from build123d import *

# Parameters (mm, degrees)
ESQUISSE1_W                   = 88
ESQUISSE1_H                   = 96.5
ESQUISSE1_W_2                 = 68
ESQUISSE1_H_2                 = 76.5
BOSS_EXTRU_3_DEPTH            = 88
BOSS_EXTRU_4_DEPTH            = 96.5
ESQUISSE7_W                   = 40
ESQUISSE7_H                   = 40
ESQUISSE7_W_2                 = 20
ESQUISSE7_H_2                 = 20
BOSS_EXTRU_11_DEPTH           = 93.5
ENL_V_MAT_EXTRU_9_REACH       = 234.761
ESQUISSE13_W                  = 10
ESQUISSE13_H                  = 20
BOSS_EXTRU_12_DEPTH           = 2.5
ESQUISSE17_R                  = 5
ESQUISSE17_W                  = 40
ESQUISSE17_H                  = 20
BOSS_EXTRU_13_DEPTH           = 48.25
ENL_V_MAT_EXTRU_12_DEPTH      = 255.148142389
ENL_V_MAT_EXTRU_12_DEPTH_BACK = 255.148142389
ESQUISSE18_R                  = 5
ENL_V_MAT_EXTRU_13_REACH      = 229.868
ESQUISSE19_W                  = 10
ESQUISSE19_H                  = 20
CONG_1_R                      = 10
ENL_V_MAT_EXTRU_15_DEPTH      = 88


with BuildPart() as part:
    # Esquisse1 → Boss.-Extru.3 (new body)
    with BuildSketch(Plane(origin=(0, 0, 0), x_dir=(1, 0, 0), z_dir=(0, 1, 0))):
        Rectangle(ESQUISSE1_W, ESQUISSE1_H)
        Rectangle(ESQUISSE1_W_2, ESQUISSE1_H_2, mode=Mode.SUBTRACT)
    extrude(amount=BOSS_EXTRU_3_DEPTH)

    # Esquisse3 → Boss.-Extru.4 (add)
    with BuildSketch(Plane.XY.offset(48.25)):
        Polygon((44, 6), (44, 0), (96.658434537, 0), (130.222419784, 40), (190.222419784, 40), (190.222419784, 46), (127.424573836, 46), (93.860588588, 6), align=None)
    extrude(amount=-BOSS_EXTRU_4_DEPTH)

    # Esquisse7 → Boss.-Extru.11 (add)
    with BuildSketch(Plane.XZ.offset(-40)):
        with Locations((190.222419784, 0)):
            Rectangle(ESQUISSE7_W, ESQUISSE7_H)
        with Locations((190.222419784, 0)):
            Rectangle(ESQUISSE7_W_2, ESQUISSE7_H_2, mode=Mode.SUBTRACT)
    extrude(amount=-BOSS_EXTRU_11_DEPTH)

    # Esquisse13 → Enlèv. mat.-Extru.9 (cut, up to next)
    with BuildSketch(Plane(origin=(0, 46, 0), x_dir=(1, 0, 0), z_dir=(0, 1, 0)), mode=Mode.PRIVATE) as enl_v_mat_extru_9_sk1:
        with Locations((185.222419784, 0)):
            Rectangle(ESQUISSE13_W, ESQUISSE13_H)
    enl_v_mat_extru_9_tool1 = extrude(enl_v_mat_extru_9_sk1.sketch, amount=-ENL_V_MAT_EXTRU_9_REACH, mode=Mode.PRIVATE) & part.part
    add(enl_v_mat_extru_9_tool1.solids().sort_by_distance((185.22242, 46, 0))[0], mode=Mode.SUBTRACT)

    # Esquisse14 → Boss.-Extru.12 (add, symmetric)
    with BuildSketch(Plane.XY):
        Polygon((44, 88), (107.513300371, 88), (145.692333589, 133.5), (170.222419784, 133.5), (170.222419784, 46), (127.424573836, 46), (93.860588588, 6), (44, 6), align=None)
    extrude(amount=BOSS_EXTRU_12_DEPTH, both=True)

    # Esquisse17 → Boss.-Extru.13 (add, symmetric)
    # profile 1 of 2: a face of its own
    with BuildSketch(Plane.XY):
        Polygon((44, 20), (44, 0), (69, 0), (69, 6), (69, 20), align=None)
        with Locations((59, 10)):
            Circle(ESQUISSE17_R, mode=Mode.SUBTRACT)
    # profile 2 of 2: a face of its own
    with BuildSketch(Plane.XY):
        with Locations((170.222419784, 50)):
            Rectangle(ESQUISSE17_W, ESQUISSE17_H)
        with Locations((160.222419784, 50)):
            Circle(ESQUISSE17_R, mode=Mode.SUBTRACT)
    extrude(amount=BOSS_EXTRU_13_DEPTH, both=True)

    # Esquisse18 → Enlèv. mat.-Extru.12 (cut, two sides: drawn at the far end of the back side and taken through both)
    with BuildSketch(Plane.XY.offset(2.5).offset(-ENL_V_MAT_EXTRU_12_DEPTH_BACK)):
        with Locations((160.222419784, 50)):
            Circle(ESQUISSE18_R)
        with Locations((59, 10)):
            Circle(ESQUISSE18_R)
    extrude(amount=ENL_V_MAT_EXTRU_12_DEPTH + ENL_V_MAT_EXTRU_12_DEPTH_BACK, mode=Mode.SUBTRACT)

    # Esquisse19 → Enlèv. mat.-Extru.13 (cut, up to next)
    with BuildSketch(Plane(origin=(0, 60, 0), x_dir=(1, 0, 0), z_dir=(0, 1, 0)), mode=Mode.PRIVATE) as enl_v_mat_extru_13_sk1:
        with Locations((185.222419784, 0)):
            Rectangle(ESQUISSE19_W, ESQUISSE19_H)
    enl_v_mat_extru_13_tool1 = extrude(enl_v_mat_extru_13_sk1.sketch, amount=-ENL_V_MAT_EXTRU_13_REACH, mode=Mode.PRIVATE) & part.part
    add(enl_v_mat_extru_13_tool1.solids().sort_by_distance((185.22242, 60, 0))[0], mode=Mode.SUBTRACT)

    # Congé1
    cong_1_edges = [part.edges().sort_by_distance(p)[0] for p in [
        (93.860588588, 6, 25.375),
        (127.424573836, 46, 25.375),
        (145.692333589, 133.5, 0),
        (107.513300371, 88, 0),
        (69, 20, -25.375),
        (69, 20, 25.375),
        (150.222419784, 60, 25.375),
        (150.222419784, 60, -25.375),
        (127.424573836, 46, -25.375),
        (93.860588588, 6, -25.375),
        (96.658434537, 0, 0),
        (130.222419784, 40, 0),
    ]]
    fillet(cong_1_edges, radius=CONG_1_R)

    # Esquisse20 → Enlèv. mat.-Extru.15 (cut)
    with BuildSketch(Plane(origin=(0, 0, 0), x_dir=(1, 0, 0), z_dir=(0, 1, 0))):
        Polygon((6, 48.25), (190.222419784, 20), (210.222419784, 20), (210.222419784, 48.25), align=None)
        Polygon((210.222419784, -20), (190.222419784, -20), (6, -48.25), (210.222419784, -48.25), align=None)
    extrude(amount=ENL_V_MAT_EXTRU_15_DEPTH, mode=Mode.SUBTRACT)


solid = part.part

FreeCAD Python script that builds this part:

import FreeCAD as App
import Part
import Sketcher
Q = App.Units.Quantity


def edges_at(feature, points):
    """Names of the edges that pass closest to the given points."""
    edges = feature.Shape.Edges
    near = lambda p: min(range(len(edges)), key=lambda i: edges[i].distToShape(Part.Vertex(*p))[0])
    return sorted({f"Edge{near(p) + 1}" for p in points})


def add_polygon(sketch, points):
    """Adds a closed chain of lines whose ends are joined by coincident constraints."""
    first, n = sketch.GeometryCount, len(points)
    for a, b in zip(points, points[1:] + points[:1]):
        sketch.addGeometry(Part.LineSegment(App.Vector(*a, 0), App.Vector(*b, 0)), False)
    for i in range(n):
        sketch.addConstraint(Sketcher.Constraint("Coincident", first + i, 2, first + (i + 1) % n, 1))

doc = App.newDocument("Part")
body = doc.addObject("PartDesign::Body", "Body")

# Sketch on XZ plane
sketch1 = body.newObject("Sketcher::SketchObject", "Sketch")
sketch1.AttachmentSupport = (doc.getObject("XZ_Plane"), [""])
sketch1.MapMode = "FlatFace"
add_polygon(sketch1, [(-44, -48), (-44, 48), (44, 48), (44, -48)])  # lines 0-3
add_polygon(sketch1, [(34, 38), (-34, 38), (-34, -38), (34, -38)])  # lines 4-7
sketch1.addConstraint([
    Sketcher.Constraint("Vertical", 0),
    Sketcher.Constraint("Horizontal", 1),
    Sketcher.Constraint("Vertical", 2),
    Sketcher.Constraint("Horizontal", 3),
    Sketcher.Constraint("Horizontal", 4),
    Sketcher.Constraint("Vertical", 5),
    Sketcher.Constraint("Horizontal", 6),
    Sketcher.Constraint("Vertical", 7),
    Sketcher.Constraint("Symmetric", 0, 2, 2, 2, -1, 1),
    Sketcher.Constraint("Symmetric", 4, 2, 6, 2, -1, 1),
    Sketcher.Constraint("DistanceX", 1, 1, 1, 2, Q("88 mm")),
    Sketcher.Constraint("DistanceX", 4, 2, 4, 1, Q("68 mm")),
    Sketcher.Constraint("DistanceY", 0, 1, 0, 2, Q("96.5 mm")),
    Sketcher.Constraint("DistanceY", 5, 2, 5, 1, Q("76.5 mm")),
])
pad1 = body.newObject("PartDesign::Pad", "Pad")
pad1.Profile = sketch1
pad1.Length = 88
pad1.Reversed = True

# Sketch on XY plane
sketch2 = body.newObject("Sketcher::SketchObject", "Sketch001")
sketch2.AttachmentSupport = (doc.getObject("XY_Plane"), [""])
sketch2.MapMode = "FlatFace"
sketch2.AttachmentOffset = App.Placement(App.Vector(0, 0, 48.25), App.Rotation())
add_polygon(sketch2, [(44, 6), (44, 0), (97, 0), (130, 40), (190, 40), (190, 46), (127, 46), (94, 6)])  # lines 0-7
sketch2.addConstraint([
    Sketcher.Constraint("Vertical", 0),
    Sketcher.Constraint("Horizontal", 1),
    Sketcher.Constraint("Horizontal", 3),
    Sketcher.Constraint("Vertical", 4),
    Sketcher.Constraint("Horizontal", 5),
    Sketcher.Constraint("Horizontal", 7),
    Sketcher.Constraint("PointOnObject", 0, 2, -1),
    Sketcher.Constraint("Parallel", 2, 6),
    Sketcher.Constraint("Equal", 0, 4),
    Sketcher.Constraint("DistanceX", 3, 1, 3, 2, Q("60 mm")),
    Sketcher.Constraint("DistanceY", 0, 2, 0, 1, Q("6 mm")),
    Sketcher.Constraint("Angle", 2, Q("50 deg")),
    Sketcher.Constraint("DistanceX", -1, 1, 0, 2, Q("44 mm")),
    Sketcher.Constraint("DistanceY", -1, 1, 2, 2, Q("40 mm")),
    Sketcher.Constraint("DistanceX", 7, 2, 7, 1, Q("49.860589 mm")),
    Sketcher.Constraint("DistanceX", 1, 1, 1, 2, Q("52.658435 mm")),
])
pad2 = body.newObject("PartDesign::Pad", "Pad001")
pad2.Profile = sketch2
pad2.Length = 96.5
pad2.Reversed = True

# Sketch on XZ plane
sketch3 = body.newObject("Sketcher::SketchObject", "Sketch002")
sketch3.AttachmentSupport = (doc.getObject("XZ_Plane"), [""])
sketch3.MapMode = "FlatFace"
sketch3.AttachmentOffset = App.Placement(App.Vector(0, 0, -40), App.Rotation())
add_polygon(sketch3, [(170, 20), (170, -20), (210, -20), (210, 20)])  # lines 0-3
add_polygon(sketch3, [(200, -10), (180, -10), (180, 10), (200, 10)])  # lines 4-7
sketch3.addConstraint([
    Sketcher.Constraint("Vertical", 0),
    Sketcher.Constraint("Horizontal", 1),
    Sketcher.Constraint("Vertical", 2),
    Sketcher.Constraint("Horizontal", 3),
    Sketcher.Constraint("Horizontal", 4),
    Sketcher.Constraint("Vertical", 5),
    Sketcher.Constraint("Horizontal", 6),
    Sketcher.Constraint("Vertical", 7),
    Sketcher.Constraint("Equal", 3, 0),
    Sketcher.Constraint("Equal", 6, 5),
    Sketcher.Constraint("DistanceX", 1, 1, 1, 2, Q("40 mm")),
    Sketcher.Constraint("DistanceX", 4, 2, 4, 1, Q("20 mm")),
    Sketcher.Constraint("DistanceY", 0, 2, -1, 1, Q("20 mm")),
    Sketcher.Constraint("DistanceY", 4, 2, -1, 1, Q("10 mm")),
    Sketcher.Constraint("DistanceX", 0, 2, 4, 2, Q("10 mm")),
    Sketcher.Constraint("DistanceX", -1, 1, 0, 2, Q("170.22242 mm")),
])
pad3 = body.newObject("PartDesign::Pad", "Pad002")
pad3.Profile = sketch3
pad3.Length = 93.5
pad3.Reversed = True

# Sketch on XZ plane
sketch4 = body.newObject("Sketcher::SketchObject", "Sketch003")
sketch4.AttachmentSupport = (doc.getObject("XZ_Plane"), [""])
sketch4.MapMode = "FlatFace"
sketch4.AttachmentOffset = App.Placement(App.Vector(0, 0, -46), App.Rotation())
add_polygon(sketch4, [(180, -10), (180, 10), (190, 10), (190, -10)])  # lines 0-3
sketch4.addConstraint([
    Sketcher.Constraint("Vertical", 0),
    Sketcher.Constraint("Horizontal", 1),
    Sketcher.Constraint("Vertical", 2),
    Sketcher.Constraint("Horizontal", 3),
    Sketcher.Constraint("DistanceX", 1, 1, 1, 2, Q("10 mm")),
    Sketcher.Constraint("DistanceY", 0, 1, 0, 2, Q("20 mm")),
    Sketcher.Constraint("DistanceY", -1, 1, 0, 2, Q("10 mm")),
    Sketcher.Constraint("DistanceX", -1, 1, 0, 2, Q("180.22242 mm")),
])
pocket1 = body.newObject("PartDesign::Pocket", "Pocket")
pocket1.Profile = sketch4
pocket1.Type = "UpToFirst"
pocket1.Reversed = True

# Sketch on XY plane
sketch5 = body.newObject("Sketcher::SketchObject", "Sketch004")
sketch5.AttachmentSupport = (doc.getObject("XY_Plane"), [""])
sketch5.MapMode = "FlatFace"
add_polygon(sketch5, [(108, 88), (44, 88), (44, 6), (94, 6), (127, 46), (170, 46), (170, 134), (146, 134)])  # lines 0-7
sketch5.addConstraint([
    Sketcher.Constraint("Horizontal", 0),
    Sketcher.Constraint("Vertical", 1),
    Sketcher.Constraint("Horizontal", 2),
    Sketcher.Constraint("Horizontal", 4),
    Sketcher.Constraint("Vertical", 5),
    Sketcher.Constraint("Horizontal", 6),
    Sketcher.Constraint("Parallel", 3, 7),
    Sketcher.Constraint("DistanceY", 1, 2, 1, 1, Q("82 mm")),
    Sketcher.Constraint("Angle", 3, Q("50 deg")),
    Sketcher.Constraint("DistanceY", 5, 1, 5, 2, Q("87.5 mm")),
    Sketcher.Constraint("DistanceX", -1, 1, 0, 2, Q("44 mm")),
    Sketcher.Constraint("DistanceY", -1, 1, 0, 2, Q("88 mm")),
    Sketcher.Constraint("DistanceY", -1, 1, 3, 2, Q("46 mm")),
    Sketcher.Constraint("DistanceX", 0, 2, 0, 1, Q("63.5133 mm")),
    Sketcher.Constraint("DistanceX", 2, 1, 2, 2, Q("49.860589 mm")),
    Sketcher.Constraint("DistanceX", 4, 1, 4, 2, Q("42.797846 mm")),
])
pad4 = body.newObject("PartDesign::Pad", "Pad003")
pad4.Profile = sketch5
pad4.Length = 5
pad4.Midplane = True

# Sketch on XY plane
sketch6 = body.newObject("Sketcher::SketchObject", "Sketch005")
sketch6.AttachmentSupport = (doc.getObject("XY_Plane"), [""])
sketch6.MapMode = "FlatFace"
add_polygon(sketch6, [(44, 20), (44, 0), (69, 0), (69, 20)])  # lines 0-3
sketch6.addGeometry(Part.Circle(App.Vector(59, 10, 0), App.Vector(0, 0, 1), 5), False)  # 4
add_polygon(sketch6, [(150, 60), (150, 40), (190, 40), (190, 60)])  # lines 5-8
sketch6.addGeometry(Part.Circle(App.Vector(160, 50, 0), App.Vector(0, 0, 1), 5), False)  # 9
sketch6.addConstraint([
    Sketcher.Constraint("Vertical", 0),
    Sketcher.Constraint("Horizontal", 1),
    Sketcher.Constraint("Vertical", 2),
    Sketcher.Constraint("Horizontal", 3),
    Sketcher.Constraint("Vertical", 5),
    Sketcher.Constraint("Horizontal", 6),
    Sketcher.Constraint("Vertical", 7),
    Sketcher.Constraint("Horizontal", 8),
    Sketcher.Constraint("Equal", 4, 9),
    Sketcher.Constraint("PointOnObject", 0, 2, -1),
    Sketcher.Constraint("Equal", 2, 5),
    Sketcher.Constraint("Diameter", 4, Q("10 mm")),
    Sketcher.Constraint("DistanceX", 1, 1, 1, 2, Q("25 mm")),
    Sketcher.Constraint("DistanceX", 6, 1, 6, 2, Q("40 mm")),
    Sketcher.Constraint("DistanceY", 0, 2, 0, 1, Q("20 mm")),
    Sketcher.Constraint("DistanceX", -1, 1, 4, 3, Q("59 mm")),
    Sketcher.Constraint("DistanceY", -1, 1, 4, 3, Q("10 mm")),
    Sketcher.Constraint("DistanceY", -1, 1, 9, 3, Q("50 mm")),
    Sketcher.Constraint("DistanceX", -1, 1, 0, 2, Q("44 mm")),
    Sketcher.Constraint("DistanceY", -1, 1, 5, 2, Q("40 mm")),
    Sketcher.Constraint("DistanceX", 5, 2, 9, 3, Q("10 mm")),
    Sketcher.Constraint("DistanceX", -1, 1, 9, 3, Q("160.22242 mm")),
])
pad5 = body.newObject("PartDesign::Pad", "Pad004")
pad5.Profile = sketch6
pad5.Length = 96.5
pad5.Midplane = True

# Sketch on XY plane
sketch7 = body.newObject("Sketcher::SketchObject", "Sketch006")
sketch7.AttachmentSupport = (doc.getObject("XY_Plane"), [""])
sketch7.MapMode = "FlatFace"
sketch7.AttachmentOffset = App.Placement(App.Vector(0, 0, 2.5), App.Rotation())
sketch7.addGeometry([
    Part.Circle(App.Vector(160, 50, 0), App.Vector(0, 0, 1), 5),
    Part.Circle(App.Vector(59, 10, 0), App.Vector(0, 0, 1), 5),
], False)
sketch7.addConstraint([
    Sketcher.Constraint("Equal", 0, 1),
    Sketcher.Constraint("Diameter", 0, Q("10 mm")),
    Sketcher.Constraint("DistanceY", -1, 1, 0, 3, Q("50 mm")),
    Sketcher.Constraint("DistanceX", -1, 1, 1, 3, Q("59 mm")),
    Sketcher.Constraint("DistanceY", -1, 1, 1, 3, Q("10 mm")),
    Sketcher.Constraint("DistanceX", -1, 1, 0, 3, Q("160.22242 mm")),
])
pocket2 = body.newObject("PartDesign::Pocket", "Pocket001")
pocket2.Profile = sketch7
pocket2.Type = "ThroughAll"
pocket2.Midplane = True

# Sketch on XZ plane
sketch8 = body.newObject("Sketcher::SketchObject", "Sketch007")
sketch8.AttachmentSupport = (doc.getObject("XZ_Plane"), [""])
sketch8.MapMode = "FlatFace"
sketch8.AttachmentOffset = App.Placement(App.Vector(0, 0, -60), App.Rotation())
add_polygon(sketch8, [(180, -10), (180, 10), (190, 10), (190, -10)])  # lines 0-3
sketch8.addConstraint([
    Sketcher.Constraint("Vertical", 0),
    Sketcher.Constraint("Horizontal", 1),
    Sketcher.Constraint("Vertical", 2),
    Sketcher.Constraint("Horizontal", 3),
    Sketcher.Constraint("DistanceX", 1, 1, 1, 2, Q("10 mm")),
    Sketcher.Constraint("DistanceY", 0, 1, 0, 2, Q("20 mm")),
    Sketcher.Constraint("DistanceY", -1, 1, 0, 2, Q("10 mm")),
    Sketcher.Constraint("DistanceX", -1, 1, 0, 2, Q("180.22242 mm")),
])
pocket3 = body.newObject("PartDesign::Pocket", "Pocket002")
pocket3.Profile = sketch8
pocket3.Type = "UpToFirst"
pocket3.Reversed = True
doc.recompute()

fillet = body.newObject("PartDesign::Fillet", "Fillet")
fillet.Base = (pocket3, edges_at(pocket3, [
    (93.861, 6, 25.375),
    (127.425, 46, 25.375),
    (145.692, 133.5, 0),
    (107.513, 88, 0),
    (69, 20, -25.375),
    (69, 20, 25.375),
    (150.222, 60, 25.375),
    (150.222, 60, -25.375),
    (127.425, 46, -25.375),
    (93.861, 6, -25.375),
    (96.658, 0, 0),
    (130.222, 40, 0),
]))
fillet.Radius = 10

# Sketch on XZ plane
sketch9 = body.newObject("Sketcher::SketchObject", "Sketch008")
sketch9.AttachmentSupport = (doc.getObject("XZ_Plane"), [""])
sketch9.MapMode = "FlatFace"
add_polygon(sketch9, [(6, -48), (190, -20), (210, -20), (210, -48)])  # lines 0-3
add_polygon(sketch9, [(210, 20), (190, 20), (6, 48), (210, 48)])  # lines 4-7
sketch9.addConstraint([
    Sketcher.Constraint("Horizontal", 1),
    Sketcher.Constraint("Vertical", 2),
    Sketcher.Constraint("Horizontal", 3),
    Sketcher.Constraint("Horizontal", 4),
    Sketcher.Constraint("Horizontal", 6),
    Sketcher.Constraint("Vertical", 7),
    Sketcher.Constraint("Symmetric", 0, 2, 4, 2, -1),
    Sketcher.Constraint("Symmetric", 3, 2, 5, 2, -1),
    Sketcher.Constraint("Vertical", 2, 2, 6, 2),
    Sketcher.Constraint("DistanceX", 1, 1, 1, 2, Q("20 mm")),
    Sketcher.Constraint("DistanceY", 0, 2, -1, 1, Q("20 mm")),
    Sketcher.Constraint("DistanceX", -1, 1, 3, 2, Q("6 mm")),
    Sketcher.Constraint("DistanceY", 2, 2, 2, 1, Q("28.25 mm")),
    Sketcher.Constraint("DistanceX", 3, 2, 3, 1, Q("204.22242 mm")),
])
pocket4 = body.newObject("PartDesign::Pocket", "Pocket003")
pocket4.Profile = sketch9
pocket4.Length = 88

doc.recompute()
